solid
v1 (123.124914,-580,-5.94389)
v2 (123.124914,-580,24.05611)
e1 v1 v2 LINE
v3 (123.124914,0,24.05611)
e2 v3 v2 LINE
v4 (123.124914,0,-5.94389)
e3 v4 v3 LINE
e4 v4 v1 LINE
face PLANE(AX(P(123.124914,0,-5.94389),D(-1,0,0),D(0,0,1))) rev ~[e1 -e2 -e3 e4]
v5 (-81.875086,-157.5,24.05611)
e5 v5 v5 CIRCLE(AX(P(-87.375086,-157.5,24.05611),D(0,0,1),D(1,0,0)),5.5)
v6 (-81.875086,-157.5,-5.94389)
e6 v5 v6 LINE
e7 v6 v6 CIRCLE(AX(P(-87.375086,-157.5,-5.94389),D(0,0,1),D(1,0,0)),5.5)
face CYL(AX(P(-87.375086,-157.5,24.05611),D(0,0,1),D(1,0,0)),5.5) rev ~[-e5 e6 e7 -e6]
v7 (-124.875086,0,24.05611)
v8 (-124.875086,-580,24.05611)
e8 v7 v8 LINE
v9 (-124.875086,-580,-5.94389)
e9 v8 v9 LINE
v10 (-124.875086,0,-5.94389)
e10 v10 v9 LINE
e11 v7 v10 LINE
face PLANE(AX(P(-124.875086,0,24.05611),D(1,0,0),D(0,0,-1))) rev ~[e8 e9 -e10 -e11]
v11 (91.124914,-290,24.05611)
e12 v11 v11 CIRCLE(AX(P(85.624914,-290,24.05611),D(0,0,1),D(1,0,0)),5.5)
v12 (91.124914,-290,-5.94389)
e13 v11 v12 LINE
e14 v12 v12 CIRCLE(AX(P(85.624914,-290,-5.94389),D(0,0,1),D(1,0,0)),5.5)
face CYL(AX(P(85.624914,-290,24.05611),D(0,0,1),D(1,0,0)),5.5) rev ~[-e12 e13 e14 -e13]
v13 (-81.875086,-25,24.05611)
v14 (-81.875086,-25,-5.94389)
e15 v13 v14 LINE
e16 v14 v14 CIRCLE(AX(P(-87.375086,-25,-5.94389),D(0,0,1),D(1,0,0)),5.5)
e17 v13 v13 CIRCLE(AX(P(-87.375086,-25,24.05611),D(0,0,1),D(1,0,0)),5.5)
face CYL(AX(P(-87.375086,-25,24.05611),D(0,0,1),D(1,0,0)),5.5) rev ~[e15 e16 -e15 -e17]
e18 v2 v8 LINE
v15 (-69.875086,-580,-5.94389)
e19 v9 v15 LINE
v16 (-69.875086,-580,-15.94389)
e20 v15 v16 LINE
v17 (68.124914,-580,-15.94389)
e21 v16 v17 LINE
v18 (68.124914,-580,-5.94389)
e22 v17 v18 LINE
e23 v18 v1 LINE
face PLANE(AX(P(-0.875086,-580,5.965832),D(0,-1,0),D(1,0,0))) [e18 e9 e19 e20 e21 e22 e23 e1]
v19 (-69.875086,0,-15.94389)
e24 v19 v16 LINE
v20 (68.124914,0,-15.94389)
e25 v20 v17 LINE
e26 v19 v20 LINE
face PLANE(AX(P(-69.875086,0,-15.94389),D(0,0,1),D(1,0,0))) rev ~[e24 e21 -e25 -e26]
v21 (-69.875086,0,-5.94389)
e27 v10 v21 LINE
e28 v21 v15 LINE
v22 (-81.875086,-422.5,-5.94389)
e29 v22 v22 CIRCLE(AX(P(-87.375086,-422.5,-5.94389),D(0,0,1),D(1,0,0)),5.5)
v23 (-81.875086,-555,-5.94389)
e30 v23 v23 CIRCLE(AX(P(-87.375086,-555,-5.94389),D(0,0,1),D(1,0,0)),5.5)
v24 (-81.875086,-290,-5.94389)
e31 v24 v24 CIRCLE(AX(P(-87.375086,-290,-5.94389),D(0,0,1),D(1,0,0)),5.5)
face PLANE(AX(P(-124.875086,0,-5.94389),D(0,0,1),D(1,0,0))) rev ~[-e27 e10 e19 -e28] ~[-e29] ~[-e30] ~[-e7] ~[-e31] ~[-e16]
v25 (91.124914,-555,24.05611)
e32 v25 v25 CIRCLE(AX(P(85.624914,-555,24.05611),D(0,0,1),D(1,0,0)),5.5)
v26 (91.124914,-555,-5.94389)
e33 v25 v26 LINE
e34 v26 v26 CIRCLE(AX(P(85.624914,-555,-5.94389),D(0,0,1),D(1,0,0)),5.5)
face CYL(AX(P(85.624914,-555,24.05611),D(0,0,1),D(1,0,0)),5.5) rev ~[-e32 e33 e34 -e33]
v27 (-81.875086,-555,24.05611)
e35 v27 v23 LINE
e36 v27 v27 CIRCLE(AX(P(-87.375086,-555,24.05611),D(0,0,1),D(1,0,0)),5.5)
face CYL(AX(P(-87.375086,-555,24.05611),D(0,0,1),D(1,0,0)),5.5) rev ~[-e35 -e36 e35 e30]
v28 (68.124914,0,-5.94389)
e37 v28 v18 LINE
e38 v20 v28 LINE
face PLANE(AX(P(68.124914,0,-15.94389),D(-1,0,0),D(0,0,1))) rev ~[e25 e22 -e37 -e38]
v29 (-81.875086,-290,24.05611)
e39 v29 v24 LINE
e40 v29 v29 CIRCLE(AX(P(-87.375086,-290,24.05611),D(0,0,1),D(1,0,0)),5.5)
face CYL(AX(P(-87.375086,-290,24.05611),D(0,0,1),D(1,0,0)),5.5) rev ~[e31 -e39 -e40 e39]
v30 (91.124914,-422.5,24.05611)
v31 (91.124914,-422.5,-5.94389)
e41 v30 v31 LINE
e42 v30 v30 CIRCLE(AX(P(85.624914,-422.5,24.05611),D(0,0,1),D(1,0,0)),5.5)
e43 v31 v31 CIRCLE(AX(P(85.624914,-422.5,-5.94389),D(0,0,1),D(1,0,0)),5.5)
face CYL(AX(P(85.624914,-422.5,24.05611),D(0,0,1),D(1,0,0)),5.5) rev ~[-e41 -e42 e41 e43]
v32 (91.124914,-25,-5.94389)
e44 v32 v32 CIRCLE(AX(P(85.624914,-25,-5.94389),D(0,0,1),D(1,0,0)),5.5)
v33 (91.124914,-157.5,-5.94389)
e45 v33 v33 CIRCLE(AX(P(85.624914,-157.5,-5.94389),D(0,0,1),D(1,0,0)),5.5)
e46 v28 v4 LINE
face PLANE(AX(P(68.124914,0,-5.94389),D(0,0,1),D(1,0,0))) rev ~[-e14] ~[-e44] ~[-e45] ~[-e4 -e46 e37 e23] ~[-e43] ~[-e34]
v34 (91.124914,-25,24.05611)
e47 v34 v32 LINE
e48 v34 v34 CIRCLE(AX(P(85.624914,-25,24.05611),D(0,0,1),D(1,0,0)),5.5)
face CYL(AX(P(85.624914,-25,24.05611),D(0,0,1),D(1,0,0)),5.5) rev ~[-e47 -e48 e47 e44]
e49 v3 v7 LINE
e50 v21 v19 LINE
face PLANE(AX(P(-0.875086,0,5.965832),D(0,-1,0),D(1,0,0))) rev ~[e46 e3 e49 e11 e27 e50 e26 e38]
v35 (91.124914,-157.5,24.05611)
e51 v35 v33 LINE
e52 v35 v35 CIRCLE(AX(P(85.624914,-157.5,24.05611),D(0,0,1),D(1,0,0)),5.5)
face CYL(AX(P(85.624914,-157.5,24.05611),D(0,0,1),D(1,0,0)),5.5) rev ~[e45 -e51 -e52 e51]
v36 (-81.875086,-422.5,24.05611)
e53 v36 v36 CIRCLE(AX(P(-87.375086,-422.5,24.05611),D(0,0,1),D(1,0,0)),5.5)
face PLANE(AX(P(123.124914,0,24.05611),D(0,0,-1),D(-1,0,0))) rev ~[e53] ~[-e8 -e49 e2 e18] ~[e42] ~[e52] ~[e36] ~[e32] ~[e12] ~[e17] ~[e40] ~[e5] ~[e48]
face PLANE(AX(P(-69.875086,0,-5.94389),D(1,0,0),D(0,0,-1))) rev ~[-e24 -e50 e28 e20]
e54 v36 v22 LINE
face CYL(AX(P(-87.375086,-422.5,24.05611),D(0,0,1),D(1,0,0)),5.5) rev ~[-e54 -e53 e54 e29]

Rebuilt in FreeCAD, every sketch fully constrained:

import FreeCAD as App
import Part
import Sketcher

V = App.Vector

doc = App.newDocument("Part")
body = doc.addObject("PartDesign::Body", "Body")

# Sketch on XZ plane
sketch1 = body.newObject("Sketcher::SketchObject", "Sketch")
sketch1.AttachmentSupport = (doc.getObject("XZ_Plane"), [""])
sketch1.MapMode = "FlatFace"
sketch1.addGeometry(Part.LineSegment(V(123, 24, 0), V(-125, 24, 0)), False)
sketch1.addGeometry(Part.LineSegment(V(-125, 24, 0), V(-125, -6, 0)), False)
sketch1.addGeometry(Part.LineSegment(V(-125, -6, 0), V(-70, -6, 0)), False)
sketch1.addGeometry(Part.LineSegment(V(-70, -6, 0), V(-70, -16, 0)), False)
sketch1.addGeometry(Part.LineSegment(V(-70, -16, 0), V(68, -16, 0)), False)
sketch1.addGeometry(Part.LineSegment(V(68, -16, 0), V(68, -6, 0)), False)
sketch1.addGeometry(Part.LineSegment(V(68, -6, 0), V(123, -6, 0)), False)
sketch1.addGeometry(Part.LineSegment(V(123, -6, 0), V(123, 24, 0)), False)
sketch1.addConstraint(Sketcher.Constraint("Coincident", 0, 2, 1, 1))
sketch1.addConstraint(Sketcher.Constraint("Coincident", 1, 2, 2, 1))
sketch1.addConstraint(Sketcher.Constraint("Coincident", 2, 2, 3, 1))
sketch1.addConstraint(Sketcher.Constraint("Coincident", 3, 2, 4, 1))
sketch1.addConstraint(Sketcher.Constraint("Coincident", 4, 2, 5, 1))
sketch1.addConstraint(Sketcher.Constraint("Coincident", 5, 2, 6, 1))
sketch1.addConstraint(Sketcher.Constraint("Coincident", 6, 2, 7, 1))
sketch1.addConstraint(Sketcher.Constraint("Coincident", 7, 2, 0, 1))
sketch1.addConstraint(Sketcher.Constraint("Horizontal", 0))
sketch1.addConstraint(Sketcher.Constraint("Vertical", 1))
sketch1.addConstraint(Sketcher.Constraint("Horizontal", 2))
sketch1.addConstraint(Sketcher.Constraint("Vertical", 3))
sketch1.addConstraint(Sketcher.Constraint("Horizontal", 4))
sketch1.addConstraint(Sketcher.Constraint("Vertical", 5))
sketch1.addConstraint(Sketcher.Constraint("Horizontal", 6))
sketch1.addConstraint(Sketcher.Constraint("Vertical", 7))
sketch1.addConstraint(Sketcher.Constraint("Horizontal", 2, 2, 5, 2))
sketch1.addConstraint(Sketcher.Constraint("Equal", 2, 6))
sketch1.addConstraint(Sketcher.Constraint("DistanceX", 0, 2, 0, 1, 248.0))
sketch1.addConstraint(Sketcher.Constraint("DistanceX", 2, 1, 2, 2, 55.0))
sketch1.addConstraint(Sketcher.Constraint("DistanceY", 1, 2, 1, 1, 30.0))
sketch1.addConstraint(Sketcher.Constraint("DistanceY", 3, 2, 3, 1, 10.0))
sketch1.addConstraint(Sketcher.Constraint("DistanceY", -1, 1, 0, 2, 24.05611))
sketch1.addConstraint(Sketcher.Constraint("DistanceX", 0, 2, -1, 1, 124.875086))
pad1 = body.newObject("PartDesign::Pad", "Pad")
pad1.Profile = sketch1
pad1.Length = 580

# Sketch on XY plane
sketch2 = body.newObject("Sketcher::SketchObject", "Sketch001")
sketch2.AttachmentSupport = (doc.getObject("XY_Plane"), [""])
sketch2.MapMode = "FlatFace"
sketch2.AttachmentOffset = App.Placement(V(0, 0, 24.05611), App.Rotation())
sketch2.addGeometry(Part.Circle(V(-87, -25, 0), V(0, 0, 1), 6), False)
sketch2.addGeometry(Part.Circle(V(86, -25, 0), V(0, 0, 1), 6), False)
sketch2.addGeometry(Part.Circle(V(-87, -158, 0), V(0, 0, 1), 6), False)
sketch2.addGeometry(Part.Circle(V(86, -158, 0), V(0, 0, 1), 6), False)
sketch2.addGeometry(Part.Circle(V(-87, -290, 0), V(0, 0, 1), 6), False)
sketch2.addGeometry(Part.Circle(V(86, -290, 0), V(0, 0, 1), 6), False)
sketch2.addGeometry(Part.Circle(V(-87, -422, 0), V(0, 0, 1), 6), False)
sketch2.addGeometry(Part.Circle(V(86, -422, 0), V(0, 0, 1), 6), False)
sketch2.addGeometry(Part.Circle(V(86, -555, 0), V(0, 0, 1), 6), False)
sketch2.addGeometry(Part.Circle(V(-87, -555, 0), V(0, 0, 1), 6), False)
sketch2.addConstraint(Sketcher.Constraint("Equal", 0, 1))
sketch2.addConstraint(Sketcher.Constraint("Equal", 1, 2))
sketch2.addConstraint(Sketcher.Constraint("Equal", 2, 3))
sketch2.addConstraint(Sketcher.Constraint("Equal", 3, 4))
sketch2.addConstraint(Sketcher.Constraint("Equal", 4, 5))
sketch2.addConstraint(Sketcher.Constraint("Equal", 5, 6))
sketch2.addConstraint(Sketcher.Constraint("Equal", 6, 7))
sketch2.addConstraint(Sketcher.Constraint("Equal", 7, 8))
sketch2.addConstraint(Sketcher.Constraint("Equal", 8, 9))
sketch2.addConstraint(Sketcher.Constraint("Horizontal", 0, 3, 1, 3))
sketch2.addConstraint(Sketcher.Constraint("Horizontal", 2, 3, 3, 3))
sketch2.addConstraint(Sketcher.Constraint("Horizontal", 4, 3, 5, 3))
sketch2.addConstraint(Sketcher.Constraint("Horizontal", 6, 3, 7, 3))
sketch2.addConstraint(Sketcher.Constraint("Horizontal", 8, 3, 9, 3))
sketch2.addConstraint(Sketcher.Constraint("Vertical", 0, 3, 2, 3))
sketch2.addConstraint(Sketcher.Constraint("Vertical", 1, 3, 3, 3))
sketch2.addConstraint(Sketcher.Constraint("Vertical", 2, 3, 4, 3))
sketch2.addConstraint(Sketcher.Constraint("Vertical", 3, 3, 5, 3))
sketch2.addConstraint(Sketcher.Constraint("Vertical", 4, 3, 6, 3))
sketch2.addConstraint(Sketcher.Constraint("Vertical", 5, 3, 7, 3))
sketch2.addConstraint(Sketcher.Constraint("Vertical", 7, 3, 8, 3))
sketch2.addConstraint(Sketcher.Constraint("Vertical", 6, 3, 9, 3))
sketch2.addConstraint(Sketcher.Constraint("Diameter", 0, 11.0))
sketch2.addConstraint(Sketcher.Constraint("DistanceY", 0, 3, -1, 1, 25.0))
sketch2.addConstraint(Sketcher.Constraint("DistanceY", 4, 3, -1, 1, 290.0))
sketch2.addConstraint(Sketcher.Constraint("DistanceY", 8, 3, -1, 1, 555.0))
sketch2.addConstraint(Sketcher.Constraint("DistanceX", 0, 3, 1, 3, 173.0))
sketch2.addConstraint(Sketcher.Constraint("DistanceY", 6, 3, 2, 3, 265.0))
sketch2.addConstraint(Sketcher.Constraint("DistanceY", 2, 3, -1, 1, 157.5))
sketch2.addConstraint(Sketcher.Constraint("DistanceX", 0, 3, -1, 1, 87.375086))
pocket1 = body.newObject("PartDesign::Pocket", "Pocket")
pocket1.Profile = sketch2
pocket1.Type = "ThroughAll"

doc.recompute()
